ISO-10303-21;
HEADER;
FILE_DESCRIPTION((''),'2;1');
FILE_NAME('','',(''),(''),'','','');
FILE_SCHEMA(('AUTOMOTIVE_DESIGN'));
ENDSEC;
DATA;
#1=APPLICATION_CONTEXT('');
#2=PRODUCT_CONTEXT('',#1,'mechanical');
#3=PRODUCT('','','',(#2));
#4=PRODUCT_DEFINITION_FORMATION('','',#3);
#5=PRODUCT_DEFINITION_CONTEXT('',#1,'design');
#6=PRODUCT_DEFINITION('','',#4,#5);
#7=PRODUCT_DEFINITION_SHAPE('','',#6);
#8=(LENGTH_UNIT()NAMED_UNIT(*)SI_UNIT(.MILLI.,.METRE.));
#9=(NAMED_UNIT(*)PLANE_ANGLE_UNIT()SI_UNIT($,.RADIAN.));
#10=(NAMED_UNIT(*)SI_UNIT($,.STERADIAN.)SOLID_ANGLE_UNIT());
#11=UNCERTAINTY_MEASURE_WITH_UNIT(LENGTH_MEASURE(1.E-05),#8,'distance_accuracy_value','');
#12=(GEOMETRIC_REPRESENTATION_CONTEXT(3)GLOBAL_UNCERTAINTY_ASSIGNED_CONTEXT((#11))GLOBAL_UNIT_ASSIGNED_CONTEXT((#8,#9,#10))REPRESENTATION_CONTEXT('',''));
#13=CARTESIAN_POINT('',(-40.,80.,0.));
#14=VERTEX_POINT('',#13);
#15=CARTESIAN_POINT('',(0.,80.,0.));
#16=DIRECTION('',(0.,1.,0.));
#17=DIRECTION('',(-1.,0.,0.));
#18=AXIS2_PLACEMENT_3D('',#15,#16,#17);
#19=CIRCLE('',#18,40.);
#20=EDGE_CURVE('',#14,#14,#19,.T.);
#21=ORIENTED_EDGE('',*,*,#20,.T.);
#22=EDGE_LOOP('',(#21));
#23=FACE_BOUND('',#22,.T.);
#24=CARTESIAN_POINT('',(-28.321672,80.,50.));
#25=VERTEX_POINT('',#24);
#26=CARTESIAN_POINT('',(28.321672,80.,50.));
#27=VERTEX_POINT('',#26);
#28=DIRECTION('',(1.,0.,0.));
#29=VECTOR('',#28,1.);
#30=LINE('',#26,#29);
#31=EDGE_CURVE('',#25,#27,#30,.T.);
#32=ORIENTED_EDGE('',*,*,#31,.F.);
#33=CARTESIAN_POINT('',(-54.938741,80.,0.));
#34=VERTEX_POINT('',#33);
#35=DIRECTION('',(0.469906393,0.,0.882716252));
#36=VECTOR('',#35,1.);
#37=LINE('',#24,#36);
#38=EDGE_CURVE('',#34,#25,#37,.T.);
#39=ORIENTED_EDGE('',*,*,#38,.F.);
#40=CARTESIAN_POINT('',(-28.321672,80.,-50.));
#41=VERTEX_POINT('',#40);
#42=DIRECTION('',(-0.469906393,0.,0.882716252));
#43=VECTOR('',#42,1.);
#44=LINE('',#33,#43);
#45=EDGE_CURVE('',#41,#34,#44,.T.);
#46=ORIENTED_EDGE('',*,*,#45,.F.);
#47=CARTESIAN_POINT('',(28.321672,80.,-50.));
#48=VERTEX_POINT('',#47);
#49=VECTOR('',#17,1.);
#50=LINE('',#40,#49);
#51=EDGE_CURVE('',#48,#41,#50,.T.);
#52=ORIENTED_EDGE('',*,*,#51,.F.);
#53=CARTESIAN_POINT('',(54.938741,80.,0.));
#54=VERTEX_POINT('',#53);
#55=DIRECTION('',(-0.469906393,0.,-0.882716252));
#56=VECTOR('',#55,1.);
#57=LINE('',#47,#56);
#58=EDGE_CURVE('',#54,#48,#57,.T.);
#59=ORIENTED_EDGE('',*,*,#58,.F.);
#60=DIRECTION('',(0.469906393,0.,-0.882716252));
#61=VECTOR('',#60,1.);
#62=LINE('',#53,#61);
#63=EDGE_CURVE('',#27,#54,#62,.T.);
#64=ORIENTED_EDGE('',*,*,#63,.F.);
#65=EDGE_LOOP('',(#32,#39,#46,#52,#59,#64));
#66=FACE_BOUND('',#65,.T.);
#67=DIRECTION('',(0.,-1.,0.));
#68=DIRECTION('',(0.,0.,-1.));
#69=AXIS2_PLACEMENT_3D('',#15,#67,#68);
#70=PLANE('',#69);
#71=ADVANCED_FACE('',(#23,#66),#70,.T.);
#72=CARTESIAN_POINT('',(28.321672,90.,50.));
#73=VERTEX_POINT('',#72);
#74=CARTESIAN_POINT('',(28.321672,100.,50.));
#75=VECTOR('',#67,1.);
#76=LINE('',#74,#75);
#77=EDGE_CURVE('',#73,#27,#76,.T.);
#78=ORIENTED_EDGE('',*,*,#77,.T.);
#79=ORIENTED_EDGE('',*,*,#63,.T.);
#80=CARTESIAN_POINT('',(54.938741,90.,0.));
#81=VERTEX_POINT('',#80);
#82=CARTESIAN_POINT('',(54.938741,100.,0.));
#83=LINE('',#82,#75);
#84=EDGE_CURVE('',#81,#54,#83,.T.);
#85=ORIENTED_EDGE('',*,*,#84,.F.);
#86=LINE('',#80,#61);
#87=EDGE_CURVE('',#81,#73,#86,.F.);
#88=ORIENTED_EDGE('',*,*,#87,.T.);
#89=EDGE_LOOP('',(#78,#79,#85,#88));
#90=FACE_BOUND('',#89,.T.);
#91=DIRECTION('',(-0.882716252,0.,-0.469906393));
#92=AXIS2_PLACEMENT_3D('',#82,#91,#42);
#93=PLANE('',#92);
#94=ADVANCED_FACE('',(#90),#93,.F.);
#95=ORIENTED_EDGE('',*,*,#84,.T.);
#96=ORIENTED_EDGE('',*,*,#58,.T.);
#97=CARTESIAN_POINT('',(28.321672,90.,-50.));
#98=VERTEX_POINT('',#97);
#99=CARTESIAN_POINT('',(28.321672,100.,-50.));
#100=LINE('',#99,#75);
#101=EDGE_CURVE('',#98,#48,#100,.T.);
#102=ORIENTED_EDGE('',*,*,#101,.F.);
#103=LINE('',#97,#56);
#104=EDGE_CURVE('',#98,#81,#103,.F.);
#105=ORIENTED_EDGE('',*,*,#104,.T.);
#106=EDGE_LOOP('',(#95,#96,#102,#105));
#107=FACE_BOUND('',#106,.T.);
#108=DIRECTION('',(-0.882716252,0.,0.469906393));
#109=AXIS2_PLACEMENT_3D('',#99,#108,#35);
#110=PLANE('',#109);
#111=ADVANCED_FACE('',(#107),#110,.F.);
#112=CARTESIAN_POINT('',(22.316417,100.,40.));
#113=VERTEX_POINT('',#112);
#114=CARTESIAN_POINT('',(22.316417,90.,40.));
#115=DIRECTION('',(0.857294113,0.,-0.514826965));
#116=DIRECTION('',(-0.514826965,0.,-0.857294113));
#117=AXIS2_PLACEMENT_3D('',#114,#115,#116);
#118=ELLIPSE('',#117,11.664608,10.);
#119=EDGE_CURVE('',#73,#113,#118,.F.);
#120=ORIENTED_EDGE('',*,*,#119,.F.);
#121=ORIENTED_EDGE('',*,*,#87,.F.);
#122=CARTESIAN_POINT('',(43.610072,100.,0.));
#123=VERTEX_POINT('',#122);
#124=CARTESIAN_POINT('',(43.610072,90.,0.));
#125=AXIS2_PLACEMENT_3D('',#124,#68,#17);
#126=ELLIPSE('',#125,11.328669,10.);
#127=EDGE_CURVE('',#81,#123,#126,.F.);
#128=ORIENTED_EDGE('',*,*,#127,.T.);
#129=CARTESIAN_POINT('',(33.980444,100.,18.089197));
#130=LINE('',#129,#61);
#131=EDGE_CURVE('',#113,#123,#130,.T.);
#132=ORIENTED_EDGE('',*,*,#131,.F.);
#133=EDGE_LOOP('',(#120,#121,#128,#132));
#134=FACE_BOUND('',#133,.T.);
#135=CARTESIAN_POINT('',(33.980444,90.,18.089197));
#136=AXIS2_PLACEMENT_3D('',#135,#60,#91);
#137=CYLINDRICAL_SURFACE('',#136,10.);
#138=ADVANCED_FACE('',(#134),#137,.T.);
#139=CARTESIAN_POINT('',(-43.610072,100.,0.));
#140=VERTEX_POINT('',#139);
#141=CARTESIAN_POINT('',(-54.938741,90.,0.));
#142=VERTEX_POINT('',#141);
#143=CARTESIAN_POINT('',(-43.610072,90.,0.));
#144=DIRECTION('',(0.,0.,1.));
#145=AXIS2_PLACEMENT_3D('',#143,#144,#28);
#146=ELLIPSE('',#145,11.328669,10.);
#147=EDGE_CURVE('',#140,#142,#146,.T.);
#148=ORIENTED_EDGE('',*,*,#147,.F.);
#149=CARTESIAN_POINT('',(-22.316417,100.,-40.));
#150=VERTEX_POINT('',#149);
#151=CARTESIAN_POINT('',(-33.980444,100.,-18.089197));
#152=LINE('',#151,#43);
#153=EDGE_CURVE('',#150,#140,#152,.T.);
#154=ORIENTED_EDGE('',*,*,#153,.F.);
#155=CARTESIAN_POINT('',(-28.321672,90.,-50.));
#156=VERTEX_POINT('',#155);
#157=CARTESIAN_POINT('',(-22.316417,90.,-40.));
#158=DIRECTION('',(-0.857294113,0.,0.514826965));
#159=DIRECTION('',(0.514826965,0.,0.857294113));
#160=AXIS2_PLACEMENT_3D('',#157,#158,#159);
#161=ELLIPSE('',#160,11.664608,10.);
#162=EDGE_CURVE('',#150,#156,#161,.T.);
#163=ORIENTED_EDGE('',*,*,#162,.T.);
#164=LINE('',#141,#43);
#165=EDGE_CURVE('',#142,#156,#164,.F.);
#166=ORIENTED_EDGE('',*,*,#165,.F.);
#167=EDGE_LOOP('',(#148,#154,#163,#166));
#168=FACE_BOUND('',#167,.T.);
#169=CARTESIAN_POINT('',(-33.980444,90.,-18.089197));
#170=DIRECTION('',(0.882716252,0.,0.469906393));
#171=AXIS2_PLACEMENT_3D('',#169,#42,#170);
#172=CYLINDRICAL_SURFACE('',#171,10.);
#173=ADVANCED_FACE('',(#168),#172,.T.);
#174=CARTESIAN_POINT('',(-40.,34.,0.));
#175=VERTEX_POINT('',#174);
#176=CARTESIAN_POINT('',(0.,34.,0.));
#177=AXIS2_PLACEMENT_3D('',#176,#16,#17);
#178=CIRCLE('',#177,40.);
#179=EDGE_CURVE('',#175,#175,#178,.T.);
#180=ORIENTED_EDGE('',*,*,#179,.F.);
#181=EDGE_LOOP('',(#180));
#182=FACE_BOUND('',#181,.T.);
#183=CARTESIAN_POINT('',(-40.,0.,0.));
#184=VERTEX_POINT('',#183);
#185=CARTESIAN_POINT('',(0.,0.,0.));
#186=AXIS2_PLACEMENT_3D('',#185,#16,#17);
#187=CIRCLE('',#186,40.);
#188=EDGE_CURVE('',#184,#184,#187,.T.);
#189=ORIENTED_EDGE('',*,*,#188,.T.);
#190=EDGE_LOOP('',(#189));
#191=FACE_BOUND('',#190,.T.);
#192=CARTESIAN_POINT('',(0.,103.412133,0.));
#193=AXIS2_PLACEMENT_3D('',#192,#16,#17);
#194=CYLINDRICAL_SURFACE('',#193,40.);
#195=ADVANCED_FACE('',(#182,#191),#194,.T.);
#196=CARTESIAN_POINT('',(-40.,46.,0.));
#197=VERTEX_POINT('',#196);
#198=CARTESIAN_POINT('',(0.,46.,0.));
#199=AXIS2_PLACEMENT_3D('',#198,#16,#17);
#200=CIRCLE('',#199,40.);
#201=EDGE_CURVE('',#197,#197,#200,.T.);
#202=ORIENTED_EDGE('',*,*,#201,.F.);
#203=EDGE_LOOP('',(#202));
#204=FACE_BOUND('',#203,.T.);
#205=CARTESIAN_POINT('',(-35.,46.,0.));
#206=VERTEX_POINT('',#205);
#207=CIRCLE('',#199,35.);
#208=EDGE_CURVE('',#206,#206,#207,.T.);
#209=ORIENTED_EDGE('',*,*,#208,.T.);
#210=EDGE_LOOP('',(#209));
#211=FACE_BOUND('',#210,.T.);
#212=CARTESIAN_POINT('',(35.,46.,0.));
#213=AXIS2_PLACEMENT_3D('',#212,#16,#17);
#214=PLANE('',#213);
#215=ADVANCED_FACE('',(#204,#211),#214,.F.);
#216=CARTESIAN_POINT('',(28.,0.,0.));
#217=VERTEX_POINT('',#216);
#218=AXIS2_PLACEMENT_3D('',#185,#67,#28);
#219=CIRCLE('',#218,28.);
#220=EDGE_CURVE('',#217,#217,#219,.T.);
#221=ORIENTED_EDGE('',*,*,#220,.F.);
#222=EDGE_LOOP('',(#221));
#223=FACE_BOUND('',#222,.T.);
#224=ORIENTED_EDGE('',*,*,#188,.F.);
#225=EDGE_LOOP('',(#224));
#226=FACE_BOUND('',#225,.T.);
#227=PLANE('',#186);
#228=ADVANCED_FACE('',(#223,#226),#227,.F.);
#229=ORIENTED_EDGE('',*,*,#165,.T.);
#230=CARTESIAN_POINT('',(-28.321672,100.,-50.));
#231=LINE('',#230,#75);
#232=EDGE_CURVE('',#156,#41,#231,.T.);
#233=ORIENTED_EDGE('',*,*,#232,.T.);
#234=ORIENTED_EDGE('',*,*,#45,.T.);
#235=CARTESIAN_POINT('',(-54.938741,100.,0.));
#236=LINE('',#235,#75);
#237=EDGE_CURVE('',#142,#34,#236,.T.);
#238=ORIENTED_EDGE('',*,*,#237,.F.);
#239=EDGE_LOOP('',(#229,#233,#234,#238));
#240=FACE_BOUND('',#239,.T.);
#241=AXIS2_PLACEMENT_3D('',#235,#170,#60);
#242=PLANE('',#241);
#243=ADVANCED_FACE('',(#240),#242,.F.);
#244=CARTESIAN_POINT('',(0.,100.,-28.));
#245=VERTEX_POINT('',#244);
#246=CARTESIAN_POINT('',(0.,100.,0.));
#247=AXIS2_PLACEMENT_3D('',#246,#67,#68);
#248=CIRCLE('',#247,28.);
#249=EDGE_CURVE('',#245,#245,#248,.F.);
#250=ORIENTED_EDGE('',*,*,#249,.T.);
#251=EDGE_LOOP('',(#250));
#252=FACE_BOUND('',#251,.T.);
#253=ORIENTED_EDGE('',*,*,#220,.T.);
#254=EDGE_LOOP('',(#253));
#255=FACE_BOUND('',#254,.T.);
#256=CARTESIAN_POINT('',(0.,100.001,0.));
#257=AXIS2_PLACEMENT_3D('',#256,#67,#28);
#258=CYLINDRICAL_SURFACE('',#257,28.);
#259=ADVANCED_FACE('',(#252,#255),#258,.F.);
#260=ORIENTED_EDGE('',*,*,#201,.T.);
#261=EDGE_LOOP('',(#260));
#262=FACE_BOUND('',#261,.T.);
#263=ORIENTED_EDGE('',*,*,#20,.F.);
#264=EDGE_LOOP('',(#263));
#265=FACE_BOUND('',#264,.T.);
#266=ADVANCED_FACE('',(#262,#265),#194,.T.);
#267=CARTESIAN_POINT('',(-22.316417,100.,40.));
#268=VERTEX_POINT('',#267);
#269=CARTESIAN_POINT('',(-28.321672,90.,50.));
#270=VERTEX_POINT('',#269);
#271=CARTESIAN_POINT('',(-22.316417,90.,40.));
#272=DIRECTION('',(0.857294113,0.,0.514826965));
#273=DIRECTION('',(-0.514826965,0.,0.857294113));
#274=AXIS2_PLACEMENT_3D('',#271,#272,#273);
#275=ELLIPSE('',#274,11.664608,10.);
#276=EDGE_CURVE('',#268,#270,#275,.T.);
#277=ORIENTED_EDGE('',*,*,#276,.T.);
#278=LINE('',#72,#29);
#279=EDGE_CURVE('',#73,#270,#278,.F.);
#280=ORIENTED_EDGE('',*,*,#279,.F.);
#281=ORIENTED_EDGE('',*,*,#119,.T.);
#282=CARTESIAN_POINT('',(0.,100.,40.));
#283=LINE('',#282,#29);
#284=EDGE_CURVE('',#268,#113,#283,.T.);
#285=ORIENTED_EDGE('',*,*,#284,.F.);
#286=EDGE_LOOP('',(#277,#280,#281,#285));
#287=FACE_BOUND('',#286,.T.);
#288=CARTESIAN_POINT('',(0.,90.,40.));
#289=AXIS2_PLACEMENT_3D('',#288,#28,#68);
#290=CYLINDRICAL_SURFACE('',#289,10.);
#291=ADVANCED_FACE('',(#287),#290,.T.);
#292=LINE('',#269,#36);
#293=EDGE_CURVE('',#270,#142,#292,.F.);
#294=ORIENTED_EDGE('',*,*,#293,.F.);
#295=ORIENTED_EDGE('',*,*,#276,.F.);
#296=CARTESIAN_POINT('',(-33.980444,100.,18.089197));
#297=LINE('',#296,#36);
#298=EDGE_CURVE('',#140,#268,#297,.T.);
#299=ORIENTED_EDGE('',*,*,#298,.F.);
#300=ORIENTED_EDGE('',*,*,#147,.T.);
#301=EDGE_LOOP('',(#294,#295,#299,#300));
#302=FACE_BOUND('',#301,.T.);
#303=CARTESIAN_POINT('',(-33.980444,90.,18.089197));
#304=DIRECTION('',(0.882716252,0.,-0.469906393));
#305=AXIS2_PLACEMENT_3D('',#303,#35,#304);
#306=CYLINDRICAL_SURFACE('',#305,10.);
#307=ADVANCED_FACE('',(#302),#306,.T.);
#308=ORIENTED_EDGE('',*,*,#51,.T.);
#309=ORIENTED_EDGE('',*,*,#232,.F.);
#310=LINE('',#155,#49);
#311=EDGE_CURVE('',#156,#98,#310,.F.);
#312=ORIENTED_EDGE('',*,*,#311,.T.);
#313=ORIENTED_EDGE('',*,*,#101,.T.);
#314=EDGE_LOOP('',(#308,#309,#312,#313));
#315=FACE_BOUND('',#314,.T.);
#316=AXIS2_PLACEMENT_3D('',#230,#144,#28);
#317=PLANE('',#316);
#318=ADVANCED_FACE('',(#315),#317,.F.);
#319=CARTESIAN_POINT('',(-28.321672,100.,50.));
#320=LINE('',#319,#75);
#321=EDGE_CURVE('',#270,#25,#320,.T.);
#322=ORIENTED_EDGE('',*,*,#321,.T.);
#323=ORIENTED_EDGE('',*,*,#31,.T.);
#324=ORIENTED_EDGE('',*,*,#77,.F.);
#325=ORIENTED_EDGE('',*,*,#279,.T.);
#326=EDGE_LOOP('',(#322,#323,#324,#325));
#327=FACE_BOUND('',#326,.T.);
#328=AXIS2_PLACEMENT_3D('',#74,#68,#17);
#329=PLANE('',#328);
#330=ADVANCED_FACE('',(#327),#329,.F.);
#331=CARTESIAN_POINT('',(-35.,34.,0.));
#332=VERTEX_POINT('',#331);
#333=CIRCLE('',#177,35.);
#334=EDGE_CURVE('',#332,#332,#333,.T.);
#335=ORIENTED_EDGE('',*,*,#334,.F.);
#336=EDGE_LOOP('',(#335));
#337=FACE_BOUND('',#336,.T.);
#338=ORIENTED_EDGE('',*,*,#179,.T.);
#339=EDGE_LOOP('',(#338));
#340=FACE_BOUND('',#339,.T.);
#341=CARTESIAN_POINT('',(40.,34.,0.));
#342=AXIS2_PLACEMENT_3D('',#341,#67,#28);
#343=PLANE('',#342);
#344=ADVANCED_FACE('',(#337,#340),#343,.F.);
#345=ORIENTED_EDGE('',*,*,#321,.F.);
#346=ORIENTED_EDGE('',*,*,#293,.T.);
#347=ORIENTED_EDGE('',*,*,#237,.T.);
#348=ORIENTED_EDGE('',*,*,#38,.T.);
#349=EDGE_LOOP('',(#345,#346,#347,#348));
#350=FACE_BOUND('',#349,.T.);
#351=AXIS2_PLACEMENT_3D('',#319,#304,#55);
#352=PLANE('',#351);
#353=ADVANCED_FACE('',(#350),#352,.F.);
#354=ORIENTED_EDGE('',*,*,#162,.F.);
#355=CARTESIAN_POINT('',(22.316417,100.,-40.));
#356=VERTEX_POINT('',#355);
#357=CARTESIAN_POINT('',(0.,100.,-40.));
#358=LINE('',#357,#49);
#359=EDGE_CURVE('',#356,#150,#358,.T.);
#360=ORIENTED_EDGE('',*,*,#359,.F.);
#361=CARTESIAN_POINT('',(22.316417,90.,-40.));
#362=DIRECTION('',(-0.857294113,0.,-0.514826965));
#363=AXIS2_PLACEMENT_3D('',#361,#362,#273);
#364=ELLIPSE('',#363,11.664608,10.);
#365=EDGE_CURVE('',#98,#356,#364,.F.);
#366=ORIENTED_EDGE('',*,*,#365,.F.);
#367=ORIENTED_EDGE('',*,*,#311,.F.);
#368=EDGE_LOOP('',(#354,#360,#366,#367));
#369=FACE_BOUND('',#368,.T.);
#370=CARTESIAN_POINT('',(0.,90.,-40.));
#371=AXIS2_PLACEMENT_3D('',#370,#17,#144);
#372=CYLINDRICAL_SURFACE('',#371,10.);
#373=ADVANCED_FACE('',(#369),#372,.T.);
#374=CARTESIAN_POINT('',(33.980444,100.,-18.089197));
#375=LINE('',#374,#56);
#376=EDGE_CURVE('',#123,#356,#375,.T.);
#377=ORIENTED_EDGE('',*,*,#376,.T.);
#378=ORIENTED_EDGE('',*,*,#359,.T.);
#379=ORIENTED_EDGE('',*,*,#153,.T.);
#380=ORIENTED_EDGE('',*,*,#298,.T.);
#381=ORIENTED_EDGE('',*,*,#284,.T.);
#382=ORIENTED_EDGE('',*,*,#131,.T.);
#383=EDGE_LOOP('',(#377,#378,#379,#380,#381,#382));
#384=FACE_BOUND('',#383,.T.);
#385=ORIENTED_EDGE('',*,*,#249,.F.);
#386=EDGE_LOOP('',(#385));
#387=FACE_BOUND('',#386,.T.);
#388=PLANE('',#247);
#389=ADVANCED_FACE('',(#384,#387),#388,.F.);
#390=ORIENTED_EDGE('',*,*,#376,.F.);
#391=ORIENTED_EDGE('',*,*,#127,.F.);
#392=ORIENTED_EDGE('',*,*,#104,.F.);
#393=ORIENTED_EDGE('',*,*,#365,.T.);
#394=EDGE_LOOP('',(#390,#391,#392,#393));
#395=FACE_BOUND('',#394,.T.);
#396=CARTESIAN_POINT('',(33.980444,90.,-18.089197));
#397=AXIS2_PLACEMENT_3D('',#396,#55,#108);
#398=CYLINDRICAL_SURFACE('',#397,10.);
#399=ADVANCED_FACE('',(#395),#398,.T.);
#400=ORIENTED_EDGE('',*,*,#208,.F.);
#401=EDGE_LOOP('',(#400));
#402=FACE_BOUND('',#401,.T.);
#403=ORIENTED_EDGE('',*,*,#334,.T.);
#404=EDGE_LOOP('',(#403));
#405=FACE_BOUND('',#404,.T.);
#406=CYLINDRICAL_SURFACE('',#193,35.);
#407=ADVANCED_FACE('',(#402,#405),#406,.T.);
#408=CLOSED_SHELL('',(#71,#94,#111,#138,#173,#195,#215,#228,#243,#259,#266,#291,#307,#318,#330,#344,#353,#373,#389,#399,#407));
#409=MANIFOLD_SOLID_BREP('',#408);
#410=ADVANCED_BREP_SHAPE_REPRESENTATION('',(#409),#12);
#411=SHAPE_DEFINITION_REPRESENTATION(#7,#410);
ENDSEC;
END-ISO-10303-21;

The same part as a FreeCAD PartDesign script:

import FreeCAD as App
import Part
import Sketcher

V = App.Vector


def edges_at(feature, points):
    """Names of the edges that pass closest to the given points."""
    edges = feature.Shape.Edges
    near = lambda p: min(range(len(edges)), key=lambda i: edges[i].distToShape(Part.Vertex(*p))[0])
    return sorted({f"Edge{near(p) + 1}" for p in points})

doc = App.newDocument("Part")
body = doc.addObject("PartDesign::Body", "Body")

# Sketch on XY plane
sketch1 = body.newObject("Sketcher::SketchObject", "Sketch")
sketch1.AttachmentSupport = (doc.getObject("XY_Plane"), [""])
sketch1.MapMode = "FlatFace"
sketch1.addGeometry([
    Part.LineSegment(V(0, 0, 0), V(40, 0, 0)),  # 0
    Part.LineSegment(V(40, 0, 0), V(40, 34, 0)),  # 1
    Part.LineSegment(V(40, 34, 0), V(35, 34, 0)),  # 2
    Part.LineSegment(V(35, 34, 0), V(35, 46, 0)),  # 3
    Part.LineSegment(V(35, 46, 0), V(40, 46, 0)),  # 4
    Part.LineSegment(V(40, 46, 0), V(40, 80, 0)),  # 5
    Part.LineSegment(V(40, 80, 0), V(0, 80, 0)),  # 6
    Part.LineSegment(V(0, 80, 0), V(0, 0, 0)),  # 7
], False)
sketch1.addConstraint([
    Sketcher.Constraint("Coincident", 0, 2, 1, 1),
    Sketcher.Constraint("Coincident", 1, 2, 2, 1),
    Sketcher.Constraint("Coincident", 2, 2, 3, 1),
    Sketcher.Constraint("Coincident", 3, 2, 4, 1),
    Sketcher.Constraint("Coincident", 4, 2, 5, 1),
    Sketcher.Constraint("Coincident", 5, 2, 6, 1),
    Sketcher.Constraint("Coincident", 6, 2, 7, 1),
    Sketcher.Constraint("Coincident", 7, 2, 0, 1),
    Sketcher.Constraint("Horizontal", 0),
    Sketcher.Constraint("Vertical", 1),
    Sketcher.Constraint("Horizontal", 2),
    Sketcher.Constraint("Vertical", 3),
    Sketcher.Constraint("Horizontal", 4),
    Sketcher.Constraint("Vertical", 5),
    Sketcher.Constraint("Horizontal", 6),
    Sketcher.Constraint("Vertical", 7),
    Sketcher.Constraint("Coincident", 7, 2, -1, 1),
    Sketcher.Constraint("Vertical", 1, 2, 4, 2),
    Sketcher.Constraint("Equal", 1, 5),
    Sketcher.Constraint("DistanceX", 0, 1, 0, 2, 40.0),
    Sketcher.Constraint("DistanceX", 2, 2, 2, 1, 5.0),
    Sketcher.Constraint("DistanceY", 1, 1, 1, 2, 34.0),
    Sketcher.Constraint("DistanceY", 3, 1, 3, 2, 12.0),
])
revolution = body.newObject("PartDesign::Revolution", "Revolution")
revolution.Profile = sketch1
revolution.ReferenceAxis = (sketch1, ["V_Axis"])
revolution.Angle = 360

# Sketch on XZ plane
sketch2 = body.newObject("Sketcher::SketchObject", "Sketch001")
sketch2.AttachmentSupport = (doc.getObject("XZ_Plane"), [""])
sketch2.MapMode = "FlatFace"
sketch2.AttachmentOffset = App.Placement(V(0, 0, -80), App.Rotation())
sketch2.addGeometry([
    Part.LineSegment(V(28, -50, 0), V(-28, -50, 0)),  # 0
    Part.LineSegment(V(-28, -50, 0), V(-55, 0, 0)),  # 1
    Part.LineSegment(V(-55, 0, 0), V(-28, 50, 0)),  # 2
    Part.LineSegment(V(-28, 50, 0), V(28, 50, 0)),  # 3
    Part.LineSegment(V(28, 50, 0), V(55, 0, 0)),  # 4
    Part.LineSegment(V(55, 0, 0), V(28, -50, 0)),  # 5
], False)
sketch2.addConstraint([
    Sketcher.Constraint("Coincident", 0, 2, 1, 1),
    Sketcher.Constraint("Coincident", 1, 2, 2, 1),
    Sketcher.Constraint("Coincident", 2, 2, 3, 1),
    Sketcher.Constraint("Coincident", 3, 2, 4, 1),
    Sketcher.Constraint("Coincident", 4, 2, 5, 1),
    Sketcher.Constraint("Coincident", 5, 2, 0, 1),
    Sketcher.Constraint("Horizontal", 0),
    Sketcher.Constraint("Horizontal", 3),
    Sketcher.Constraint("Symmetric", 0, 2, 3, 2, -1, 1),
    Sketcher.Constraint("Symmetric", 1, 2, 4, 2, -1, 1),
    Sketcher.Constraint("PointOnObject", 1, 2, -1),
    Sketcher.Constraint("Parallel", 2, 5),
    Sketcher.Constraint("Vertical", 0, 2, 2, 2),
    Sketcher.Constraint("DistanceY", 0, 2, -1, 1, 50.0),
    Sketcher.Constraint("DistanceX", 0, 2, 0, 1, 56.643344),
    Sketcher.Constraint("DistanceX", 1, 2, -1, 1, 54.938741),
])
pad1 = body.newObject("PartDesign::Pad", "Pad")
pad1.Profile = sketch2
pad1.Length = 20
pad1.Reversed = True
doc.recompute()

fillet = body.newObject("PartDesign::Fillet", "Fillet")
fillet.Base = (pad1, edges_at(pad1, [
    (-41.63, 100, -25),
    (-41.63, 100, 25),
    (0, 100, 50),
    (41.63, 100, 25),
    (41.63, 100, -25),
    (0, 100, -50),
]))
fillet.Radius = 10

# Sketch on XZ plane
sketch3 = body.newObject("Sketcher::SketchObject", "Sketch002")
sketch3.AttachmentSupport = (doc.getObject("XZ_Plane"), [""])
sketch3.MapMode = "FlatFace"
sketch3.addGeometry(Part.Circle(V(0, 0, 0), V(0, 0, 1), 28), False)
sketch3.addConstraint([
    Sketcher.Constraint("Coincident", 0, 3, -1, 1),
    Sketcher.Constraint("Diameter", 0, 56.0),
])
pocket1 = body.newObject("PartDesign::Pocket", "Pocket")
pocket1.Profile = sketch3
pocket1.Type = "UpToFirst"

doc.recompute()
